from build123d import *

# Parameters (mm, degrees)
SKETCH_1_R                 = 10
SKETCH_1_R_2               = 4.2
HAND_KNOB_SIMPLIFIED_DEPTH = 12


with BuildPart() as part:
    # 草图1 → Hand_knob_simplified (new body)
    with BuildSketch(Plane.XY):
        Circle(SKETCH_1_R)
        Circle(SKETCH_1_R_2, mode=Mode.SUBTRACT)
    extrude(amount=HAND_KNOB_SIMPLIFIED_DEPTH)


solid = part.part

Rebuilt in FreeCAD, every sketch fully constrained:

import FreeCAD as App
import Part
import Sketcher
from FreeCAD import Vector
Q = App.Units.Quantity

doc = App.newDocument("Part")
params = doc.addObject("Spreadsheet::Sheet", "Params")
for row, (alias, value) in enumerate([
    ("sketch1_diameter", "20 mm"),
    ("sketch1_diameter2", "8.4 mm"),
    ("pad1_length", "12 mm"),
], start=1):
    params.set(f"A{row}", alias)
    params.set(f"B{row}", "=" + value)
    params.setAlias(f"B{row}", alias)

body = doc.addObject("PartDesign::Body", "Body")

# Sketch on XY plane
sketch1 = doc.addObject("Sketcher::SketchObject", "Sketch")
body.addObject(sketch1)
sketch1.AttachmentSupport = (doc.XY_Plane, [""])
sketch1.MapMode = "FlatFace"
sketch1.addGeometry(Part.Circle(Vector(0, 0, 0), Vector(0, 0, 1), 10), False)
sketch1.addGeometry(Part.Circle(Vector(0, 0, 0), Vector(0, 0, 1), 4.2), False)
sketch1.addConstraint(Sketcher.Constraint("Coincident", 0, 3, -1, 1))
sketch1.addConstraint(Sketcher.Constraint("Coincident", 1, 3, -1, 1))
sketch1.addConstraint(Sketcher.Constraint("Diameter", 0, Q("20 mm")))
sketch1.addConstraint(Sketcher.Constraint("Diameter", 1, Q("8.4 mm")))
sketch1.setExpression("Constraints[2]", "Params.sketch1_diameter")
sketch1.setExpression("Constraints[3]", "Params.sketch1_diameter2")
pad1 = doc.addObject("PartDesign::Pad", "Pad")
body.addObject(pad1)
pad1.Profile = sketch1
pad1.setExpression("Length", "Params.pad1_length")

doc.recompute()
